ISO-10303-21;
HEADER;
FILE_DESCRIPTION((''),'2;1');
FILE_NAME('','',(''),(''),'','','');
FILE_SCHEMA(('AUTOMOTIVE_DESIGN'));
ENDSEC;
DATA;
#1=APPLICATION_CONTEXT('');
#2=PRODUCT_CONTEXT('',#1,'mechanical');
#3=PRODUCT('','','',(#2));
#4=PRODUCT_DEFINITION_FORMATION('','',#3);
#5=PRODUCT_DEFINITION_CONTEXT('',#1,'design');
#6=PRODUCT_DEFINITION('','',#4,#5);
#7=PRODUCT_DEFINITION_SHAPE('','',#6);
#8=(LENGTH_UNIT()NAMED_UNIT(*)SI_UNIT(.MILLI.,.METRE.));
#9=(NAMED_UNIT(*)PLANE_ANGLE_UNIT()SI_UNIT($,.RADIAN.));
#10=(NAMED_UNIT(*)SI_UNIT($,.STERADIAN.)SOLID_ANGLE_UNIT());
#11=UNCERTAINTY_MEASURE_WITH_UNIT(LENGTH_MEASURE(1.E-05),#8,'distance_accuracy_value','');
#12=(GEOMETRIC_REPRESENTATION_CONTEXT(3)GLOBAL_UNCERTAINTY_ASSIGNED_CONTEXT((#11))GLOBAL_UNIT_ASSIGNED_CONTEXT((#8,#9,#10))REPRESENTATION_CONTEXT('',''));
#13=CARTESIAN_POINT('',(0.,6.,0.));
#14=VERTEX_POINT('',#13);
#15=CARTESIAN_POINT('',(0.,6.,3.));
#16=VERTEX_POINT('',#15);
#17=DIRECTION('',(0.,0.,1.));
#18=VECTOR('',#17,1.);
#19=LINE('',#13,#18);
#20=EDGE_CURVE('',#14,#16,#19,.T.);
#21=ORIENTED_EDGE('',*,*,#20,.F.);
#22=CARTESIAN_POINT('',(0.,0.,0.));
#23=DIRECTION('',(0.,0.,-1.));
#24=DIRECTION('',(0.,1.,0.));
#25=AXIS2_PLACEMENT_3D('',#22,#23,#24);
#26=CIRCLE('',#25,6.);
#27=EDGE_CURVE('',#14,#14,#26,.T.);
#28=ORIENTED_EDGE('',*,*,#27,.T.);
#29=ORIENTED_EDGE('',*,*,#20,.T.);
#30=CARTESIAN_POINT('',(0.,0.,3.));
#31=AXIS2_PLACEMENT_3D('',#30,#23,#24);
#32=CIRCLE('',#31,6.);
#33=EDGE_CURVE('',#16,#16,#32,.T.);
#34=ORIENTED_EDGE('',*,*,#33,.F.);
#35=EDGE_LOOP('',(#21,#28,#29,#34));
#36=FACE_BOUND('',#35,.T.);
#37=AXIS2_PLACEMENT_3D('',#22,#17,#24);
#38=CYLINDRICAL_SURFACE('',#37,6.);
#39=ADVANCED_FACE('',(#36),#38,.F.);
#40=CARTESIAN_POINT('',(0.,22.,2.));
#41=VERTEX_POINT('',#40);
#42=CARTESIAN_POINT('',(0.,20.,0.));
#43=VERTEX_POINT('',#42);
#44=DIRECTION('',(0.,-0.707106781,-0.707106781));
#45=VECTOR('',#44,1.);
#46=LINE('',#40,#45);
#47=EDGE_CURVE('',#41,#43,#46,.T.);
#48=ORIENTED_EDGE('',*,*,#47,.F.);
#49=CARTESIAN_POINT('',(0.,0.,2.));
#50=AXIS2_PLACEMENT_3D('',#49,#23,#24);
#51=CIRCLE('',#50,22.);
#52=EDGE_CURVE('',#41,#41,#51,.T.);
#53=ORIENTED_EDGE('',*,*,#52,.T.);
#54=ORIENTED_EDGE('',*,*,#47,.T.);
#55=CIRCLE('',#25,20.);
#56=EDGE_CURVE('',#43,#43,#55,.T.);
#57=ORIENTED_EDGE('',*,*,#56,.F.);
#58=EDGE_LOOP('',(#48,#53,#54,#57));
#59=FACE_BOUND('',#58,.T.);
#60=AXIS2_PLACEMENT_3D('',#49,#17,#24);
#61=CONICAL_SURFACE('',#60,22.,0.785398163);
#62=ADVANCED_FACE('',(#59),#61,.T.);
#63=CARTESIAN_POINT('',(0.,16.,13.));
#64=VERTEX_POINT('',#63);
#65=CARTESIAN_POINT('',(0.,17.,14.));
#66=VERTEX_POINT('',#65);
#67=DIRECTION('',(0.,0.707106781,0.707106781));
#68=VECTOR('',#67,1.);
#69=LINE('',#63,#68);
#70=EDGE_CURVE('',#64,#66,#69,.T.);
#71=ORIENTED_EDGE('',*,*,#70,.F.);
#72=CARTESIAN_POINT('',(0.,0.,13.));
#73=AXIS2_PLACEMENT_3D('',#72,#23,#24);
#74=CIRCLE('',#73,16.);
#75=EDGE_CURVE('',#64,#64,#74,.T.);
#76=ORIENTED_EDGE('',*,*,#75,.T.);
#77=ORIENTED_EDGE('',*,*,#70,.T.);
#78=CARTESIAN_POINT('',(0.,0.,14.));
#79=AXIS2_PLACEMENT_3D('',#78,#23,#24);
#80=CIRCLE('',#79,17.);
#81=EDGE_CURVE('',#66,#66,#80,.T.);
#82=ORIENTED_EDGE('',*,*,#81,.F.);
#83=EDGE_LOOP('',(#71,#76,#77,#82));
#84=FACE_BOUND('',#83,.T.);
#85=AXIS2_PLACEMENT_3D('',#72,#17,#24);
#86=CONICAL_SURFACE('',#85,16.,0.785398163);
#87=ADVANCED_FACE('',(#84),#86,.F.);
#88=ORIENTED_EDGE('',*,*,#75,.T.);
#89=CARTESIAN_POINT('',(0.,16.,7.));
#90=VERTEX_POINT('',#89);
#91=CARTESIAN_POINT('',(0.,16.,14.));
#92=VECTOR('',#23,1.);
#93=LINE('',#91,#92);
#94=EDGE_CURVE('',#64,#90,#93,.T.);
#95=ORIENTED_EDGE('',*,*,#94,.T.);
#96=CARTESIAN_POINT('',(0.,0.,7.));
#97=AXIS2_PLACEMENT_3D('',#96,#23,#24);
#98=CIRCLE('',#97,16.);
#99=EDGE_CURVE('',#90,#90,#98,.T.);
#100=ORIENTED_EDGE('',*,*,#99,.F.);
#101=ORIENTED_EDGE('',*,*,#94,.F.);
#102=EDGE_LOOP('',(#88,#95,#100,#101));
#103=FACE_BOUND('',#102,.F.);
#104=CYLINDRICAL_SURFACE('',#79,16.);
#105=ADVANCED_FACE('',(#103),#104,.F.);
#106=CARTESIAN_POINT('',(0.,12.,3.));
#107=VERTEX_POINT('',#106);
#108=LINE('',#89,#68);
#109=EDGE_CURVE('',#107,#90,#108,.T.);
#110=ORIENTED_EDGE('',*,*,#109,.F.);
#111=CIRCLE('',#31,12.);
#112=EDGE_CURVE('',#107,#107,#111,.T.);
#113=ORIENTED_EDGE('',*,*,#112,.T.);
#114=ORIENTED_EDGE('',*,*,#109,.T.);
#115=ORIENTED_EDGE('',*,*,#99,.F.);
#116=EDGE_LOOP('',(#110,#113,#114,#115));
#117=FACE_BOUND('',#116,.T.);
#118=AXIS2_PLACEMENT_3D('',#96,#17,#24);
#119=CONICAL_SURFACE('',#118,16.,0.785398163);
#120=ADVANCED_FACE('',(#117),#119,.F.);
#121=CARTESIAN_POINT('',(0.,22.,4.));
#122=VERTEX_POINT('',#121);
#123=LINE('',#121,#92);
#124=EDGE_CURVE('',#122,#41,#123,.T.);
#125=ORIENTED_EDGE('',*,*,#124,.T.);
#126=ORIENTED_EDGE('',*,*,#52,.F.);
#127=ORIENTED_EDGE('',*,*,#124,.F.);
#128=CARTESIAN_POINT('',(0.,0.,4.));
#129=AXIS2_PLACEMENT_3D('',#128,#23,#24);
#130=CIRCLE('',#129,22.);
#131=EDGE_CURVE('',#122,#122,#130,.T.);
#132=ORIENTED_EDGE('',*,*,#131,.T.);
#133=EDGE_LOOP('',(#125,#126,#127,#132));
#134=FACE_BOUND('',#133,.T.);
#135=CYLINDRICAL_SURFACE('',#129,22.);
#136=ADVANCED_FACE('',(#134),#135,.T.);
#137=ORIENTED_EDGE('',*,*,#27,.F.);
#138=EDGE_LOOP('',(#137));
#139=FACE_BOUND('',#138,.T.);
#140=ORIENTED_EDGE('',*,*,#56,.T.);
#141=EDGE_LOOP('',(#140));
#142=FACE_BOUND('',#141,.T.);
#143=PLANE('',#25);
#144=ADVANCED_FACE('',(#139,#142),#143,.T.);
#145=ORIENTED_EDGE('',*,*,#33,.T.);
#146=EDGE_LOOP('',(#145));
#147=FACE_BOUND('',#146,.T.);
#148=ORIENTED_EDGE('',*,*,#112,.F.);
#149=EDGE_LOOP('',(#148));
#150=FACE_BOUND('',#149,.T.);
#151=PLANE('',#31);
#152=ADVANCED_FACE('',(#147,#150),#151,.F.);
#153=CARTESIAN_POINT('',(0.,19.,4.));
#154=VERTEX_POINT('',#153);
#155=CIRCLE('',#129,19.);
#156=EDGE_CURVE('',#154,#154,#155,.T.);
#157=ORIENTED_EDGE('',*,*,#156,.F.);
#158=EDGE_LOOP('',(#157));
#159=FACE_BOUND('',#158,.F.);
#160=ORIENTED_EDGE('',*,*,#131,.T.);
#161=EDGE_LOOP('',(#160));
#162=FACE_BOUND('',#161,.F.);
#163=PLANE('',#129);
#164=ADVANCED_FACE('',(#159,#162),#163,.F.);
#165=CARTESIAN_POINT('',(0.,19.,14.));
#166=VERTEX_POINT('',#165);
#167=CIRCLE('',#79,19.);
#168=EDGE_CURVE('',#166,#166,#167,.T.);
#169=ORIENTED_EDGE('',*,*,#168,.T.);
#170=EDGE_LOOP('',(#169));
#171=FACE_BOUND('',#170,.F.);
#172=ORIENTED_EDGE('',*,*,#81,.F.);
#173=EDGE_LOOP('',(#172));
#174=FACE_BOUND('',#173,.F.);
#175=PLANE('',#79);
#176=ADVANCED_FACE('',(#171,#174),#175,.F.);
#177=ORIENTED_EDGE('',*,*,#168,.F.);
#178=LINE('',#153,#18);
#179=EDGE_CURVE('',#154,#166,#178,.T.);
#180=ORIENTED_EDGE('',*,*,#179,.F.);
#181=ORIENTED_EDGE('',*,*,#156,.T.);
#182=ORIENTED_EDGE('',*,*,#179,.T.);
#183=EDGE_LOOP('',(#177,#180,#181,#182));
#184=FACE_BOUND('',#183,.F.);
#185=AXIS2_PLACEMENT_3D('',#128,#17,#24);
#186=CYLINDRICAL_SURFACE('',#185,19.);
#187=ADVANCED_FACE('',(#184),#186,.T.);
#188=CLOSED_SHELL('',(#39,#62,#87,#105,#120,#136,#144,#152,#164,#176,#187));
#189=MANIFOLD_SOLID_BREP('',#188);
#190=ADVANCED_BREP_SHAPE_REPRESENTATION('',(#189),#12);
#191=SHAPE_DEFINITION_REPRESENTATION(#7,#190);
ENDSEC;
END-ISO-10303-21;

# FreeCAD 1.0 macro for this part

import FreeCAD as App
import Part
import Sketcher
from FreeCAD import Vector


def edges_at(feature, points):
    """Names of the edges that pass closest to the given points."""
    edges = feature.Shape.Edges
    near = lambda p: min(range(len(edges)), key=lambda i: edges[i].distToShape(Part.Vertex(*p))[0])
    return sorted({f"Edge{near(p) + 1}" for p in points})

doc = App.newDocument("Part")
body = doc.addObject("PartDesign::Body", "Body")

sketch1 = body.newObject("Sketcher::SketchObject", "Sketch")
sketch1.AttachmentSupport = (doc.getObject("YZ_Plane"), [""])
sketch1.MapMode = "FlatFace"
sketch1.addGeometry(Part.LineSegment(Vector(22, 0, 0), Vector(22, 4, 0)), False)
sketch1.addGeometry(Part.LineSegment(Vector(22, 4, 0), Vector(19, 4, 0)), False)
sketch1.addGeometry(Part.LineSegment(Vector(19, 4, 0), Vector(19, 14, 0)), False)
sketch1.addGeometry(Part.LineSegment(Vector(19, 14, 0), Vector(16, 14, 0)), False)
sketch1.addGeometry(Part.LineSegment(Vector(16, 14, 0), Vector(16, 3, 0)), False)
sketch1.addGeometry(Part.LineSegment(Vector(16, 3, 0), Vector(6, 3, 0)), False)
sketch1.addGeometry(Part.LineSegment(Vector(6, 3, 0), Vector(6, 0, 0)), False)
sketch1.addGeometry(Part.LineSegment(Vector(6, 0, 0), Vector(22, 0, 0)), False)
sketch1.addConstraint(Sketcher.Constraint("Coincident", 0, 2, 1, 1))
sketch1.addConstraint(Sketcher.Constraint("Coincident", 1, 2, 2, 1))
sketch1.addConstraint(Sketcher.Constraint("Coincident", 2, 2, 3, 1))
sketch1.addConstraint(Sketcher.Constraint("Coincident", 3, 2, 4, 1))
sketch1.addConstraint(Sketcher.Constraint("Coincident", 4, 2, 5, 1))
sketch1.addConstraint(Sketcher.Constraint("Coincident", 5, 2, 6, 1))
sketch1.addConstraint(Sketcher.Constraint("Coincident", 6, 2, 7, 1))
sketch1.addConstraint(Sketcher.Constraint("Coincident", 7, 2, 0, 1))
sketch1.addConstraint(Sketcher.Constraint("Vertical", 0))
sketch1.addConstraint(Sketcher.Constraint("Horizontal", 1))
sketch1.addConstraint(Sketcher.Constraint("Vertical", 2))
sketch1.addConstraint(Sketcher.Constraint("Horizontal", 3))
sketch1.addConstraint(Sketcher.Constraint("Vertical", 4))
sketch1.addConstraint(Sketcher.Constraint("Horizontal", 5))
sketch1.addConstraint(Sketcher.Constraint("Vertical", 6))
sketch1.addConstraint(Sketcher.Constraint("Horizontal", 7))
sketch1.addConstraint(Sketcher.Constraint("PointOnObject", 6, 2, -1))
sketch1.addConstraint(Sketcher.Constraint("Equal", 1, 3))
sketch1.addConstraint(Sketcher.Constraint("Equal", 5, 2))
sketch1.addConstraint(Sketcher.Constraint("Equal", 3, 6))
sketch1.addConstraint(Sketcher.Constraint("DistanceX", 1, 2, 1, 1, 3.0))
sketch1.addConstraint(Sketcher.Constraint("DistanceX", 5, 2, 5, 1, 10.0))
sketch1.addConstraint(Sketcher.Constraint("DistanceY", 0, 1, 0, 2, 4.0))
sketch1.addConstraint(Sketcher.Constraint("DistanceX", -1, 1, 0, 2, 22.0))
revolution = body.newObject("PartDesign::Revolution", "Revolution")
revolution.Profile = sketch1
revolution.ReferenceAxis = (sketch1, ["V_Axis"])
revolution.Angle = 360
doc.recompute()

chamfer = body.newObject("PartDesign::Chamfer", "Chamfer")
chamfer.Base = (revolution, edges_at(revolution, [(0, -22, 0)]))
chamfer.Size = 2
doc.recompute()

chamfer2 = body.newObject("PartDesign::Chamfer", "Chamfer001")
chamfer2.Base = (chamfer, edges_at(chamfer, [(0, -16, 3)]))
chamfer2.Size = 4
doc.recompute()

chamfer3 = body.newObject("PartDesign::Chamfer", "Chamfer002")
chamfer3.Base = (chamfer2, edges_at(chamfer2, [(0, -16, 14)]))
chamfer3.Size = 1

doc.recompute()
